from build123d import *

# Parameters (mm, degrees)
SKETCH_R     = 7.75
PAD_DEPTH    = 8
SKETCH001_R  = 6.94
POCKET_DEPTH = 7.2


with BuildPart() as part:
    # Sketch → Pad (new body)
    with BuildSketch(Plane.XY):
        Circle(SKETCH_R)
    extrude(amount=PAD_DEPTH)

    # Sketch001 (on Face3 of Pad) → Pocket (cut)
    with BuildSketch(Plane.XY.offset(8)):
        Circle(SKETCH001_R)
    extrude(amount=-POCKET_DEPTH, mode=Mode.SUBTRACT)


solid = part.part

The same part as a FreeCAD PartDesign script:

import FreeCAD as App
import Part
import Sketcher

V = App.Vector
Q = App.Units.Quantity

doc = App.newDocument("Part")
params = doc.addObject("Spreadsheet::Sheet", "Params")
for row, (alias, value) in enumerate([
    ("sketch1_diameter", "15.5 mm"),
    ("pad1_length", "8 mm"),
    ("sketch2_diameter", "13.88 mm"),
    ("pocket1_length", "7.2 mm"),
], start=1):
    params.set(f"A{row}", alias)
    params.set(f"B{row}", "=" + value)
    params.setAlias(f"B{row}", alias)

body = doc.addObject("PartDesign::Body", "Body")

sketch1 = doc.addObject("Sketcher::SketchObject", "Sketch")
body.addObject(sketch1)
sketch1.AttachmentSupport = (doc.XY_Plane, [""])
sketch1.MapMode = "FlatFace"
sketch1.addGeometry(Part.Circle(V(0, 0, 0), V(0, 0, 1), 8), False)
sketch1.addConstraint([
    Sketcher.Constraint("Coincident", 0, 3, -1, 1),
    Sketcher.Constraint("Diameter", 0, Q("15.5 mm")),
])
sketch1.setExpression("Constraints[1]", "Params.sketch1_diameter")
pad1 = doc.addObject("PartDesign::Pad", "Pad")
body.addObject(pad1)
pad1.Profile = sketch1
pad1.setExpression("Length", "Params.pad1_length")

sketch2 = doc.addObject("Sketcher::SketchObject", "Sketch001")
body.addObject(sketch2)
sketch2.AttachmentSupport = (doc.XY_Plane, [""])
sketch2.MapMode = "FlatFace"
sketch2.AttachmentOffset = App.Placement(V(0, 0, 8), App.Rotation())
sketch2.addGeometry(Part.Circle(V(0, 0, 0), V(0, 0, 1), 7), False)
sketch2.addConstraint([
    Sketcher.Constraint("Coincident", 0, 3, -1, 1),
    Sketcher.Constraint("Diameter", 0, Q("13.88 mm")),
])
sketch2.setExpression("Constraints[1]", "Params.sketch2_diameter")
pocket1 = doc.addObject("PartDesign::Pocket", "Pocket")
body.addObject(pocket1)
pocket1.Profile = sketch2
pocket1.setExpression("Length", "Params.pocket1_length")

doc.recompute()
